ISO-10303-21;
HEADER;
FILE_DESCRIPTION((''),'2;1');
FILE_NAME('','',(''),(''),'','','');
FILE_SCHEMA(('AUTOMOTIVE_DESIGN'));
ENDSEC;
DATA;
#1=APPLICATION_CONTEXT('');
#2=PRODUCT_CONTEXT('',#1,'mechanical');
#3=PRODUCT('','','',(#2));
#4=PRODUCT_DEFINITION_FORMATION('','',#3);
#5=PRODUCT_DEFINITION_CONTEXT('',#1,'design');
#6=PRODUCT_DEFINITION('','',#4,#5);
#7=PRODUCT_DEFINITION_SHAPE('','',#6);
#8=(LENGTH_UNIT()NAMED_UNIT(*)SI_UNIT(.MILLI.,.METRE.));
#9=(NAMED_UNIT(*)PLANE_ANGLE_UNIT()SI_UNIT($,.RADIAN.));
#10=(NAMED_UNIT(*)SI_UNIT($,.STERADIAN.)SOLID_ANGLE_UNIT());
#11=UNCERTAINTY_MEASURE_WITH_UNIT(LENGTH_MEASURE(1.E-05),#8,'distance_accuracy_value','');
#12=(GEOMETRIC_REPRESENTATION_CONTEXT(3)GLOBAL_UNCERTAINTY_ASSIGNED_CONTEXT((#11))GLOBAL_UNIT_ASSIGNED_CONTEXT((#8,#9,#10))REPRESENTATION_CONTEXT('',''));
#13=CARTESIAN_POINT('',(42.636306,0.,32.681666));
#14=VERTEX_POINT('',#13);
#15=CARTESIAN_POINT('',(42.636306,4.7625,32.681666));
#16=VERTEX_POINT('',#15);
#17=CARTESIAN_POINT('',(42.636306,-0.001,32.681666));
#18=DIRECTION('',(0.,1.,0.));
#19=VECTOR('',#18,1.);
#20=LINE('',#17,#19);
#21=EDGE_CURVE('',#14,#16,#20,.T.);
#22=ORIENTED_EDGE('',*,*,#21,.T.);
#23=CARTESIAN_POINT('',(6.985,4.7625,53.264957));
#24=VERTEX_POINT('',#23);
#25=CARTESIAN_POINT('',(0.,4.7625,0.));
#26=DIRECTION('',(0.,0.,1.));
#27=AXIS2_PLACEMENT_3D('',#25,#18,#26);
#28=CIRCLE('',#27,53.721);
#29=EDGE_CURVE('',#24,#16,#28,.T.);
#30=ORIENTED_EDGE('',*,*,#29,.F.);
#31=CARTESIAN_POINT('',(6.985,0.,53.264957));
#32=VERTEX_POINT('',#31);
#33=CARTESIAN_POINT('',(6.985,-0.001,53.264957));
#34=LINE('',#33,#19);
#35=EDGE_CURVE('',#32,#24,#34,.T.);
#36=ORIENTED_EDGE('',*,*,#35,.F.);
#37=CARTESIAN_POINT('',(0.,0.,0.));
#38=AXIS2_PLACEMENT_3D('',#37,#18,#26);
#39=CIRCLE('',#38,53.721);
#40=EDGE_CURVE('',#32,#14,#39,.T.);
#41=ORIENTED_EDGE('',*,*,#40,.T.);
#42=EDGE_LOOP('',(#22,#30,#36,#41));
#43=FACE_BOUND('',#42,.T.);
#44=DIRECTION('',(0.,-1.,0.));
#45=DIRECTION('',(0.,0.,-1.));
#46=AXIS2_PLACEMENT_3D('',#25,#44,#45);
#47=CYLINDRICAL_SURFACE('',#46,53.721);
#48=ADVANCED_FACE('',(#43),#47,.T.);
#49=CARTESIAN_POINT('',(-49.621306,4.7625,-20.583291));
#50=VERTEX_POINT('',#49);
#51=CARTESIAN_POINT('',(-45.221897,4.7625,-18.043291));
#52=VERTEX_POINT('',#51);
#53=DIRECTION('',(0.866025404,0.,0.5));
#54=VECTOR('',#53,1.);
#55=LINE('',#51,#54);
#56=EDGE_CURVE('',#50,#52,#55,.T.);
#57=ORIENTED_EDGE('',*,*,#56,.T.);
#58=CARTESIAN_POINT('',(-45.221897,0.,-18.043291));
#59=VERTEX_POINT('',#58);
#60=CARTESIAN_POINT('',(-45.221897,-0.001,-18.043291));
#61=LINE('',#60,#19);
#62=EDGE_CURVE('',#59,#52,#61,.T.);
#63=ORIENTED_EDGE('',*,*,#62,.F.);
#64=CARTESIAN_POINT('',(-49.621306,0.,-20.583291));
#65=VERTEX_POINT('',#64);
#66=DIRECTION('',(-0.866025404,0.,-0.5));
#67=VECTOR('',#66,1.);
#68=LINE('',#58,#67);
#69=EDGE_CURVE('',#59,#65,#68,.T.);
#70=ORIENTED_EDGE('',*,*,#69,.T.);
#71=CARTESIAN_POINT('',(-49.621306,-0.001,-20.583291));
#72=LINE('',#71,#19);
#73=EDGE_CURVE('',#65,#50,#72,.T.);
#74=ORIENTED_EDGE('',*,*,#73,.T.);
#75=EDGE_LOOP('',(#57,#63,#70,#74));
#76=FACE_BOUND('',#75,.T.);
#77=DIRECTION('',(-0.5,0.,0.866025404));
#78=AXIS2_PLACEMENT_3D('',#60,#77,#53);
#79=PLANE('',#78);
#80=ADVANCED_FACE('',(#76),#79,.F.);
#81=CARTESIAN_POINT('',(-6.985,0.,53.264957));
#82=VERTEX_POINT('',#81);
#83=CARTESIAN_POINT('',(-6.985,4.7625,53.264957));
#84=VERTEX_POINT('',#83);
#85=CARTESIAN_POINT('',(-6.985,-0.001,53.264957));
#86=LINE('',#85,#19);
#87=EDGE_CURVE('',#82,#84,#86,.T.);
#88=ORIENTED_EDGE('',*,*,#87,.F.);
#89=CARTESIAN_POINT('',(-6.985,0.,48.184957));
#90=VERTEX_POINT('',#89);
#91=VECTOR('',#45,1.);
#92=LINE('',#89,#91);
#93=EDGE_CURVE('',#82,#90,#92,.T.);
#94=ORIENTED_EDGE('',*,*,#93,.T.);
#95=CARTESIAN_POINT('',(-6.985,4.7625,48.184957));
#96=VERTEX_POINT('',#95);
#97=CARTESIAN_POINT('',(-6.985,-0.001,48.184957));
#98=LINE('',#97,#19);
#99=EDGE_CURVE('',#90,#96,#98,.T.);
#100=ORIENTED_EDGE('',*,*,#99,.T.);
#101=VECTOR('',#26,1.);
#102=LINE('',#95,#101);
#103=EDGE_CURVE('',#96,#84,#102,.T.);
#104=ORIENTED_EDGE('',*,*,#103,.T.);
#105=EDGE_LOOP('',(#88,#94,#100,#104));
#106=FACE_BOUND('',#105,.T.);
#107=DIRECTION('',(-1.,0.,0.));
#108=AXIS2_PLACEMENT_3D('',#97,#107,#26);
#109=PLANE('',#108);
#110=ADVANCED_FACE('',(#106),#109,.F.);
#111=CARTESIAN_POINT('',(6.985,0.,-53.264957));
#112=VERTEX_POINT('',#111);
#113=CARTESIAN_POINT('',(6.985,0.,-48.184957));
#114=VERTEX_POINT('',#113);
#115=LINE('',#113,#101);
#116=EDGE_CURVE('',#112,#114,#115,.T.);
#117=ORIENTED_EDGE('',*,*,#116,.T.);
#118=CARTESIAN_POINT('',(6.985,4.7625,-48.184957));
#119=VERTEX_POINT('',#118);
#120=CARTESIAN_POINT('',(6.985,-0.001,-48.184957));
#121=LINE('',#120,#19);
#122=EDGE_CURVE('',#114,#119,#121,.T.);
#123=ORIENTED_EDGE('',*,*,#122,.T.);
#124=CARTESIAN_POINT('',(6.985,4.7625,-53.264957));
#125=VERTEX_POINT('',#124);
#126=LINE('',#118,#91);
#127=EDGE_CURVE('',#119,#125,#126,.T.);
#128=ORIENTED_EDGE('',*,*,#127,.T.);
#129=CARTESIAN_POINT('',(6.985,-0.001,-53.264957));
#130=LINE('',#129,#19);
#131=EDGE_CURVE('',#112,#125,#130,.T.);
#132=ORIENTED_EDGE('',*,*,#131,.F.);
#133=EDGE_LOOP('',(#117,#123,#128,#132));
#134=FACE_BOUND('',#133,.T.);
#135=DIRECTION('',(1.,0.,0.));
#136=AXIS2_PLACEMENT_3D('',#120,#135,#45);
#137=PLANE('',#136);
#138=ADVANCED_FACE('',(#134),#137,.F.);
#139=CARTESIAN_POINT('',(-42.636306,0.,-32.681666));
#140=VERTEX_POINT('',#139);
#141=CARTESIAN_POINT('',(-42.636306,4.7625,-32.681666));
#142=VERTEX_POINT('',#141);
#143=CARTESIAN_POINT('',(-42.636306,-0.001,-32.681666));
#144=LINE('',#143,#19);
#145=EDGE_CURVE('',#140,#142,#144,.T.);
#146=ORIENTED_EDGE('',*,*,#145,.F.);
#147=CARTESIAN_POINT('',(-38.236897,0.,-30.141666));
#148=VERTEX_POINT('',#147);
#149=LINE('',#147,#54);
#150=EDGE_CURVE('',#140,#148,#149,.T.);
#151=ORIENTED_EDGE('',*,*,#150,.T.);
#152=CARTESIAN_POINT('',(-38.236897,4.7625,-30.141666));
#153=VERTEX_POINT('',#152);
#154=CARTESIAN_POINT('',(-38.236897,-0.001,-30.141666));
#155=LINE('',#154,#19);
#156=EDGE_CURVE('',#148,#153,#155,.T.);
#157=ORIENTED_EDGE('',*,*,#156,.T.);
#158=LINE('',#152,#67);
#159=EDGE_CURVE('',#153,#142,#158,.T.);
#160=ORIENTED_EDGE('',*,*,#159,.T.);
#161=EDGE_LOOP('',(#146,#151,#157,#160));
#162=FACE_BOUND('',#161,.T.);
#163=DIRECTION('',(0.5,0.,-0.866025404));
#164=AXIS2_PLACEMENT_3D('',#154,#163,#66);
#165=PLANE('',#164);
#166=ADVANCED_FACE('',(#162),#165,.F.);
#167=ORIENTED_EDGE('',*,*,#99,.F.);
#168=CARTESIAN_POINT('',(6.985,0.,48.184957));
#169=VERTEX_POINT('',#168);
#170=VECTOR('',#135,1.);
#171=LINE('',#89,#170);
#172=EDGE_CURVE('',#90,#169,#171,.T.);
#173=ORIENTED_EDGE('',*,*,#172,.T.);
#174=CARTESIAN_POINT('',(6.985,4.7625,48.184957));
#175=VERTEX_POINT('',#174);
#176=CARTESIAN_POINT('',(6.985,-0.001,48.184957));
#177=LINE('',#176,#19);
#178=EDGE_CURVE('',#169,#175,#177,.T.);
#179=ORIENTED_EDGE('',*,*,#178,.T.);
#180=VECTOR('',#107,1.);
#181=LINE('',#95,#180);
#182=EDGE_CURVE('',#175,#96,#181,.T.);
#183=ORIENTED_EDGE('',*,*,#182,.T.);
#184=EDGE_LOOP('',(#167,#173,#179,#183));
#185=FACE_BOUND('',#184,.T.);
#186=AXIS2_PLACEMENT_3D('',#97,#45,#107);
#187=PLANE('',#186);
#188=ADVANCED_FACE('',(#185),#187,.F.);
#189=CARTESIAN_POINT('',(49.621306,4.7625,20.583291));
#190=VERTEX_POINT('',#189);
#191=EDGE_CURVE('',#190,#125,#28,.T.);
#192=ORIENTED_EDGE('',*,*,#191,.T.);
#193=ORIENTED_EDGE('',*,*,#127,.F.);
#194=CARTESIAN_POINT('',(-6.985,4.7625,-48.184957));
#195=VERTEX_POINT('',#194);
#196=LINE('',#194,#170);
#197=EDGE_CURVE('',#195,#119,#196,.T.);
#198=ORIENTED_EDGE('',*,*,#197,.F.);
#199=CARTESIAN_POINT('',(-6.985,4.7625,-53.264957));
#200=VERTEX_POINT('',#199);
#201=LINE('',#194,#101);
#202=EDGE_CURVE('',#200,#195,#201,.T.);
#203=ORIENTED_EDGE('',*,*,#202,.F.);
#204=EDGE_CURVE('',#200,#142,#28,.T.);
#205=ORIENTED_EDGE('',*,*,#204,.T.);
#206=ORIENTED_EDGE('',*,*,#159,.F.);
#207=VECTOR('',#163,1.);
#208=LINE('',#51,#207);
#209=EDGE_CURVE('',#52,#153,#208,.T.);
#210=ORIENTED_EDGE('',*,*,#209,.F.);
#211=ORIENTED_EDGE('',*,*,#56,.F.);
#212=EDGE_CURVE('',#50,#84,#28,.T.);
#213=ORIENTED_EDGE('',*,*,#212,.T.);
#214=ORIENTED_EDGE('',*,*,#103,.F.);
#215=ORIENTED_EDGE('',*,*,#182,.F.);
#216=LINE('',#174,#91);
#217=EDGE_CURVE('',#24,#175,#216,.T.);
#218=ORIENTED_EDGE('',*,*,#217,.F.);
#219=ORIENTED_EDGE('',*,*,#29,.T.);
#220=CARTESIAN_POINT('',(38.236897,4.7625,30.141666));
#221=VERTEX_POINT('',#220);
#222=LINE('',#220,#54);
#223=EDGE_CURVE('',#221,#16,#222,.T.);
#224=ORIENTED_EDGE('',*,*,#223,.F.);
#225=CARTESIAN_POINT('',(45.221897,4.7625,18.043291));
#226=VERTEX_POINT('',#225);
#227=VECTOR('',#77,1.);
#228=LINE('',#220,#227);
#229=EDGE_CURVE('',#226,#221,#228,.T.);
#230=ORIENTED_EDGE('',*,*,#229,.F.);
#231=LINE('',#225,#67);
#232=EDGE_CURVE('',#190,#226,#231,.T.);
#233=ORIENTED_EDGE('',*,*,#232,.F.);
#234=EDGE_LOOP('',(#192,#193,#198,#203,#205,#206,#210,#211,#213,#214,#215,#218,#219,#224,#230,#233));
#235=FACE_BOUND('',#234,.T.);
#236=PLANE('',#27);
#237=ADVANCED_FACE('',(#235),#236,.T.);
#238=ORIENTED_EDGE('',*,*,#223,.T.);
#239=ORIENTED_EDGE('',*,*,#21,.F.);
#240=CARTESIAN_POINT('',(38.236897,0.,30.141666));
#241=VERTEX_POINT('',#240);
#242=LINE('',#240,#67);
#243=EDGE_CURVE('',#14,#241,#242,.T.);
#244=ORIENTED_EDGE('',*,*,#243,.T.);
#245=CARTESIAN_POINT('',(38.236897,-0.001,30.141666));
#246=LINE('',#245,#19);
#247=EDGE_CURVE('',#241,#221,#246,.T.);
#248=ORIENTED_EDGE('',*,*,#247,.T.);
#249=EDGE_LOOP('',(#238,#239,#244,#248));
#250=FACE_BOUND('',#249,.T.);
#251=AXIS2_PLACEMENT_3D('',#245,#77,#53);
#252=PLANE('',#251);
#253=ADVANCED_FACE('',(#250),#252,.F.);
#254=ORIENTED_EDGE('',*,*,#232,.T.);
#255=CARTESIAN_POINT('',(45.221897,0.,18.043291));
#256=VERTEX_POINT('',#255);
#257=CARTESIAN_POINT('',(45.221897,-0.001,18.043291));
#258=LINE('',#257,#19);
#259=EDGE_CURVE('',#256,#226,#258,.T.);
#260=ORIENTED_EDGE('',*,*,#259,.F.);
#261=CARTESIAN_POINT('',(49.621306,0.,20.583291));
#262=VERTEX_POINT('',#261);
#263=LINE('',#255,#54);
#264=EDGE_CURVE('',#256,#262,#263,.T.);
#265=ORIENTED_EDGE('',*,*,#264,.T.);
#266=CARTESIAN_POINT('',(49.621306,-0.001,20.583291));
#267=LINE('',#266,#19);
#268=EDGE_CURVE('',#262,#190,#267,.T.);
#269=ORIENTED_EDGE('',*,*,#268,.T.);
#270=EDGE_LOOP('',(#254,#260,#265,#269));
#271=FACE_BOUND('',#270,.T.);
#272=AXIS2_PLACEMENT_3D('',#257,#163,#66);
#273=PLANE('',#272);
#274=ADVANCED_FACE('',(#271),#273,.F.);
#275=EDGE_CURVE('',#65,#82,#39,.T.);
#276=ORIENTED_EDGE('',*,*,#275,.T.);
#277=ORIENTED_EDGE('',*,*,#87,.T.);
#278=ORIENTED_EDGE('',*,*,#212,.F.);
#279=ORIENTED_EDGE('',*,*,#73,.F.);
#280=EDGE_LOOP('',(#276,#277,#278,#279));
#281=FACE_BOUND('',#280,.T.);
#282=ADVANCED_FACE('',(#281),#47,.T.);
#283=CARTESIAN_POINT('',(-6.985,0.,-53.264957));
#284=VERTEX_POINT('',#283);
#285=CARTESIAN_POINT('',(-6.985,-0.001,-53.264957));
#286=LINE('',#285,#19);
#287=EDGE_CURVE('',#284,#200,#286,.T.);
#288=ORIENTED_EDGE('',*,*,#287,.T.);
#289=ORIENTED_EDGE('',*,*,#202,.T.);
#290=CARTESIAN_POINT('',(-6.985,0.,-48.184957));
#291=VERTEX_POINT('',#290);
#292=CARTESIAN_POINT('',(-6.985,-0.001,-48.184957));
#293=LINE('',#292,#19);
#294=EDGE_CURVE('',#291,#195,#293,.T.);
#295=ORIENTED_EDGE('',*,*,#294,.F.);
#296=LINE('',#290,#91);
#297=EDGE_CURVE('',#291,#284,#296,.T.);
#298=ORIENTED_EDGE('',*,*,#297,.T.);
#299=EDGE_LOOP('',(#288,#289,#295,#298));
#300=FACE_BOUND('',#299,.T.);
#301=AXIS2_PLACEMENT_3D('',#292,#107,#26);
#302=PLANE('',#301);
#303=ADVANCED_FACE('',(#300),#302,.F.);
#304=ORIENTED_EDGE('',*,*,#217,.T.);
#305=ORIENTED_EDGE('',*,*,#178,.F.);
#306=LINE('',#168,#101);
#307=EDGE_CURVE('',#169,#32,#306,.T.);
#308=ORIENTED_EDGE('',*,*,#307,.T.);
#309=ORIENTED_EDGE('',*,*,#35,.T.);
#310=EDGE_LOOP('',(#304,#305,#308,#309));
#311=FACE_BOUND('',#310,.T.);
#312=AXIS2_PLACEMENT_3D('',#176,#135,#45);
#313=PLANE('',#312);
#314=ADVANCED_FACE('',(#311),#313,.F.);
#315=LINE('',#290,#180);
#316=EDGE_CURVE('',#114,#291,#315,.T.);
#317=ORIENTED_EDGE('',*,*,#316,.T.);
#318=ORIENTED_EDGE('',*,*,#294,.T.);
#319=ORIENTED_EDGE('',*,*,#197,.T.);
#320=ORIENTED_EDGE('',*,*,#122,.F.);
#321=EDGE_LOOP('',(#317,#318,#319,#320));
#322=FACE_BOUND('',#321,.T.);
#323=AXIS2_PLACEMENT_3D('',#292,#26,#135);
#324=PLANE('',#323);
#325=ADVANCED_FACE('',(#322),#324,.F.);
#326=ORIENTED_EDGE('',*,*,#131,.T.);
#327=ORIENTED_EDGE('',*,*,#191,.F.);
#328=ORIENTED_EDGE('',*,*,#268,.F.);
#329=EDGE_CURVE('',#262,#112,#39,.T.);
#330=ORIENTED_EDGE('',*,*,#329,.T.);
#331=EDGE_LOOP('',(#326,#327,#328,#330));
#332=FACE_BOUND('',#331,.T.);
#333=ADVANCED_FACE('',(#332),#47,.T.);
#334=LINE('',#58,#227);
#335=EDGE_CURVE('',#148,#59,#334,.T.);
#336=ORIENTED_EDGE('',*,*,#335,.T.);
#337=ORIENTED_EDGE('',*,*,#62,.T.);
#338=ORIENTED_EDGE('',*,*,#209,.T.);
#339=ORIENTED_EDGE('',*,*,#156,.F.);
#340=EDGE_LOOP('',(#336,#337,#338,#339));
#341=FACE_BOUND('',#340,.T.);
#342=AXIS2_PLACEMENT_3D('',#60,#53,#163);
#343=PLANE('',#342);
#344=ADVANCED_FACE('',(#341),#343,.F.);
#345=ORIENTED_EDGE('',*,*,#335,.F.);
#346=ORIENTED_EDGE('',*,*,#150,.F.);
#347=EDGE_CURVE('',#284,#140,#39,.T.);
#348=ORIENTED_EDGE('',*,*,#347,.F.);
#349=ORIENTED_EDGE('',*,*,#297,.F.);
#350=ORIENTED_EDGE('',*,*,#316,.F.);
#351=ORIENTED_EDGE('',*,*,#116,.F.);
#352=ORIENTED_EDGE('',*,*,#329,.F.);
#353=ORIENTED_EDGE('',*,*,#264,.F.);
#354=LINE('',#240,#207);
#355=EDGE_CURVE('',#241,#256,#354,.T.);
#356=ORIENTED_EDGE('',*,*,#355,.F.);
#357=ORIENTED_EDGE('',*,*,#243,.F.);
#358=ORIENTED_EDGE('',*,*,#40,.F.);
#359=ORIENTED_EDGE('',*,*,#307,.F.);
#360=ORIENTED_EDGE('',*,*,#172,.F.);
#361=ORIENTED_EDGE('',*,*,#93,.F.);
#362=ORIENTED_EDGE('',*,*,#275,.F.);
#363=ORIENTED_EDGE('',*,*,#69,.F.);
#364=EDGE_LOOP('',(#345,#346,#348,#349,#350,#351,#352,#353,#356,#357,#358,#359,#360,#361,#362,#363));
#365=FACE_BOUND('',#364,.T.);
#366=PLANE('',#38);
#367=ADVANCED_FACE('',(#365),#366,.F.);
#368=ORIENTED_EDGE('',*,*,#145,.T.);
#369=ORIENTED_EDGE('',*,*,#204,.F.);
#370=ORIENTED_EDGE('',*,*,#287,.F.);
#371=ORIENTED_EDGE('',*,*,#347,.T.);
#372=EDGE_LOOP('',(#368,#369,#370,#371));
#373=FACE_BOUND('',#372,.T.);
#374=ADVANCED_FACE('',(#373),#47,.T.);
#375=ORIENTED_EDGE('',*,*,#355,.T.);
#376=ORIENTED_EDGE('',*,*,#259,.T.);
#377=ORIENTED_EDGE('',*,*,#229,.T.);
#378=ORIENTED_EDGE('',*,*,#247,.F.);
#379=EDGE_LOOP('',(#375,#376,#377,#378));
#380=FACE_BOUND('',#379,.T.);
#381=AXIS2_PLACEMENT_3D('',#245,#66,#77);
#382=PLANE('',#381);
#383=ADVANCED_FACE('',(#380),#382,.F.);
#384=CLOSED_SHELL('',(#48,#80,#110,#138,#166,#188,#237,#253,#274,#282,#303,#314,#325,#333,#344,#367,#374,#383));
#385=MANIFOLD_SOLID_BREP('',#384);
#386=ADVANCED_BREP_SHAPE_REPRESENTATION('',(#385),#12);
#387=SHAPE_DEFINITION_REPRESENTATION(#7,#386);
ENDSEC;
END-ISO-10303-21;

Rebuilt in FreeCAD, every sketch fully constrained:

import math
import FreeCAD as App
import Part
import Sketcher
Q = App.Units.Quantity

doc = App.newDocument("Part")
body = doc.addObject("PartDesign::Body", "Body")

sketch1 = doc.addObject("Sketcher::SketchObject", "Sketch")
body.addObject(sketch1)
sketch1.AttachmentSupport = (doc.XZ_Plane, [""])
sketch1.MapMode = "FlatFace"
sketch1.addGeometry(Part.Circle(App.Vector(0, 0, 0), App.Vector(0, 0, 1), 53.721), False)
sketch1.addConstraint(Sketcher.Constraint("Coincident", 0, 3, -1, 1))
sketch1.addConstraint(Sketcher.Constraint("Diameter", 0, Q("4.23 in")))
pad1 = doc.addObject("PartDesign::Pad", "Pad")
body.addObject(pad1)
pad1.Profile = sketch1
pad1.Length = Q("0.1875 in")
pad1.Reversed = True

sketch2 = doc.addObject("Sketcher::SketchObject", "Sketch001")
body.addObject(sketch2)
sketch2.AttachmentSupport = (doc.XZ_Plane, [""])
sketch2.MapMode = "FlatFace"
sketch2.AttachmentOffset = App.Placement(App.Vector(0, 0, -0.1875 * 25.4), App.Rotation())
sketch2.addGeometry(Part.LineSegment(App.Vector(6.985, 48.184957, 0), App.Vector(-6.985, 48.184957, 0)), False)
sketch2.addGeometry(Part.LineSegment(App.Vector(-6.985, 48.184957, 0), App.Vector(-6.985, 53.264957, 0)), False)
sketch2.addGeometry(Part.ArcOfCircle(Part.Circle(App.Vector(0, 0, 0), App.Vector(0, 0, 1), 53.721), math.radians(82.529042), math.radians(97.470958)), False)
sketch2.addGeometry(Part.LineSegment(App.Vector(6.985, 53.264957, 0), App.Vector(6.985, 48.184957, 0)), False)
sketch2.addConstraint(Sketcher.Constraint("Coincident", 0, 2, 1, 1))
sketch2.addConstraint(Sketcher.Constraint("Coincident", 1, 2, 2, 2))
sketch2.addConstraint(Sketcher.Constraint("Coincident", 2, 1, 3, 1))
sketch2.addConstraint(Sketcher.Constraint("Coincident", 3, 2, 0, 1))
sketch2.addConstraint(Sketcher.Constraint("Horizontal", 0))
sketch2.addConstraint(Sketcher.Constraint("Vertical", 1))
sketch2.addConstraint(Sketcher.Constraint("Vertical", 3))
sketch2.addConstraint(Sketcher.Constraint("Coincident", 2, 3, -1, 1))
sketch2.addConstraint(Sketcher.Constraint("Horizontal", 1, 2, 2, 1))
sketch2.addConstraint(Sketcher.Constraint("DistanceY", 1, 1, 1, 2, Q("0.2 in")))
sketch2.addConstraint(Sketcher.Constraint("Radius", 2, Q("2.115 in")))
sketch2.addConstraint(Sketcher.Constraint("DistanceX", 0, 2, 0, 1, Q("0.55 in")))
pocket1 = doc.addObject("PartDesign::Pocket", "Pocket")
body.addObject(pocket1)
pocket1.Profile = sketch2
pocket1.Type = "UpToFirst"
pocket1.Reversed = True

sketch3 = doc.addObject("Sketcher::SketchObject", "Sketch002")
body.addObject(sketch3)
sketch3.AttachmentSupport = (doc.XZ_Plane, [""])
sketch3.MapMode = "FlatFace"
sketch3.AttachmentOffset = App.Placement(App.Vector(0, 0, -0.1875 * 25.4), App.Rotation())
sketch3.addGeometry(Part.LineSegment(App.Vector(6.985, -48.184957, 0), App.Vector(6.985, -53.264957, 0)), False)
sketch3.addGeometry(Part.ArcOfCircle(Part.Circle(App.Vector(0, 0, 0), App.Vector(0, 0, 1), 53.721), math.radians(-97.470958), math.radians(-82.529042)), False)
sketch3.addGeometry(Part.LineSegment(App.Vector(-6.985, -53.264957, 0), App.Vector(-6.985, -48.184957, 0)), False)
sketch3.addGeometry(Part.LineSegment(App.Vector(-6.985, -48.184957, 0), App.Vector(6.985, -48.184957, 0)), False)
sketch3.addConstraint(Sketcher.Constraint("Coincident", 0, 2, 1, 2))
sketch3.addConstraint(Sketcher.Constraint("Coincident", 1, 1, 2, 1))
sketch3.addConstraint(Sketcher.Constraint("Coincident", 2, 2, 3, 1))
sketch3.addConstraint(Sketcher.Constraint("Coincident", 3, 2, 0, 1))
sketch3.addConstraint(Sketcher.Constraint("Vertical", 0))
sketch3.addConstraint(Sketcher.Constraint("Vertical", 2))
sketch3.addConstraint(Sketcher.Constraint("Horizontal", 3))
sketch3.addConstraint(Sketcher.Constraint("Coincident", 1, 3, -1, 1))
sketch3.addConstraint(Sketcher.Constraint("Horizontal", 0, 2, 1, 1))
sketch3.addConstraint(Sketcher.Constraint("DistanceY", 0, 2, 0, 1, Q("0.2 in")))
sketch3.addConstraint(Sketcher.Constraint("Radius", 1, Q("2.115 in")))
sketch3.addConstraint(Sketcher.Constraint("DistanceX", 3, 1, 3, 2, Q("0.55 in")))
pocket2 = doc.addObject("PartDesign::Pocket", "Pocket001")
body.addObject(pocket2)
pocket2.Profile = sketch3
pocket2.Type = "UpToFirst"
pocket2.Reversed = True

sketch4 = doc.addObject("Sketcher::SketchObject", "Sketch003")
body.addObject(sketch4)
sketch4.AttachmentSupport = (doc.XZ_Plane, [""])
sketch4.MapMode = "FlatFace"
sketch4.AttachmentOffset = App.Placement(App.Vector(0, 0, -0.1875 * 25.4), App.Rotation())
sketch4.addGeometry(Part.LineSegment(App.Vector(45.221897, 18.043291, 0), App.Vector(38.236897, 30.141666, 0)), False)
sketch4.addGeometry(Part.LineSegment(App.Vector(38.236897, 30.141666, 0), App.Vector(42.636306, 32.681666, 0)), False)
sketch4.addGeometry(Part.ArcOfCircle(Part.Circle(App.Vector(0, 0, 0), App.Vector(0, 0, 1), 53.721), math.radians(22.529042), math.radians(37.470958)), False)
sketch4.addGeometry(Part.LineSegment(App.Vector(49.621306, 20.583291, 0), App.Vector(45.221897, 18.043291, 0)), False)
sketch4.addConstraint(Sketcher.Constraint("Coincident", 0, 2, 1, 1))
sketch4.addConstraint(Sketcher.Constraint("Coincident", 1, 2, 2, 2))
sketch4.addConstraint(Sketcher.Constraint("Coincident", 2, 1, 3, 1))
sketch4.addConstraint(Sketcher.Constraint("Coincident", 3, 2, 0, 1))
sketch4.addConstraint(Sketcher.Constraint("Coincident", 2, 3, -1, 1))
sketch4.addConstraint(Sketcher.Constraint("Perpendicular", 0, 1))
sketch4.addConstraint(Sketcher.Constraint("Parallel", 1, 3))
sketch4.addConstraint(Sketcher.Constraint("Equal", 1, 3))
sketch4.addConstraint(Sketcher.Constraint("Angle", 0, Q("120 deg")))
sketch4.addConstraint(Sketcher.Constraint("Radius", 2, Q("2.115 in")))
sketch4.addConstraint(Sketcher.Constraint("Distance", 1, Q("0.2 in")))
sketch4.addConstraint(Sketcher.Constraint("Distance", 0, Q("0.55 in")))
pocket3 = doc.addObject("PartDesign::Pocket", "Pocket002")
body.addObject(pocket3)
pocket3.Profile = sketch4
pocket3.Type = "UpToFirst"
pocket3.Reversed = True

sketch5 = doc.addObject("Sketcher::SketchObject", "Sketch004")
body.addObject(sketch5)
sketch5.AttachmentSupport = (doc.XZ_Plane, [""])
sketch5.MapMode = "FlatFace"
sketch5.AttachmentOffset = App.Placement(App.Vector(0, 0, -0.1875 * 25.4), App.Rotation())
sketch5.addGeometry(Part.LineSegment(App.Vector(-49.621306, -20.583291, 0), App.Vector(-45.221897, -18.043291, 0)), False)
sketch5.addGeometry(Part.LineSegment(App.Vector(-45.221897, -18.043291, 0), App.Vector(-38.236897, -30.141666, 0)), False)
sketch5.addGeometry(Part.LineSegment(App.Vector(-38.236897, -30.141666, 0), App.Vector(-42.636306, -32.681666, 0)), False)
sketch5.addGeometry(Part.ArcOfCircle(Part.Circle(App.Vector(0, 0, 0), App.Vector(0, 0, 1), 53.721), math.radians(-157.470958), math.radians(-142.529042)), False)
sketch5.addConstraint(Sketcher.Constraint("Coincident", 0, 2, 1, 1))
sketch5.addConstraint(Sketcher.Constraint("Coincident", 1, 2, 2, 1))
sketch5.addConstraint(Sketcher.Constraint("Coincident", 2, 2, 3, 2))
sketch5.addConstraint(Sketcher.Constraint("Coincident", 3, 1, 0, 1))
sketch5.addConstraint(Sketcher.Constraint("Coincident", 3, 3, -1, 1))
sketch5.addConstraint(Sketcher.Constraint("Perpendicular", 0, 1))
sketch5.addConstraint(Sketcher.Constraint("Perpendicular", 1, 2))
sketch5.addConstraint(Sketcher.Constraint("Equal", 0, 2))
sketch5.addConstraint(Sketcher.Constraint("Angle", 0, Q("30 deg")))
sketch5.addConstraint(Sketcher.Constraint("Radius", 3, Q("2.115 in")))
sketch5.addConstraint(Sketcher.Constraint("Distance", 0, Q("0.2 in")))
sketch5.addConstraint(Sketcher.Constraint("Distance", 1, Q("0.55 in")))
pocket4 = doc.addObject("PartDesign::Pocket", "Pocket003")
body.addObject(pocket4)
pocket4.Profile = sketch5
pocket4.Type = "UpToFirst"
pocket4.Reversed = True

doc.recompute()
